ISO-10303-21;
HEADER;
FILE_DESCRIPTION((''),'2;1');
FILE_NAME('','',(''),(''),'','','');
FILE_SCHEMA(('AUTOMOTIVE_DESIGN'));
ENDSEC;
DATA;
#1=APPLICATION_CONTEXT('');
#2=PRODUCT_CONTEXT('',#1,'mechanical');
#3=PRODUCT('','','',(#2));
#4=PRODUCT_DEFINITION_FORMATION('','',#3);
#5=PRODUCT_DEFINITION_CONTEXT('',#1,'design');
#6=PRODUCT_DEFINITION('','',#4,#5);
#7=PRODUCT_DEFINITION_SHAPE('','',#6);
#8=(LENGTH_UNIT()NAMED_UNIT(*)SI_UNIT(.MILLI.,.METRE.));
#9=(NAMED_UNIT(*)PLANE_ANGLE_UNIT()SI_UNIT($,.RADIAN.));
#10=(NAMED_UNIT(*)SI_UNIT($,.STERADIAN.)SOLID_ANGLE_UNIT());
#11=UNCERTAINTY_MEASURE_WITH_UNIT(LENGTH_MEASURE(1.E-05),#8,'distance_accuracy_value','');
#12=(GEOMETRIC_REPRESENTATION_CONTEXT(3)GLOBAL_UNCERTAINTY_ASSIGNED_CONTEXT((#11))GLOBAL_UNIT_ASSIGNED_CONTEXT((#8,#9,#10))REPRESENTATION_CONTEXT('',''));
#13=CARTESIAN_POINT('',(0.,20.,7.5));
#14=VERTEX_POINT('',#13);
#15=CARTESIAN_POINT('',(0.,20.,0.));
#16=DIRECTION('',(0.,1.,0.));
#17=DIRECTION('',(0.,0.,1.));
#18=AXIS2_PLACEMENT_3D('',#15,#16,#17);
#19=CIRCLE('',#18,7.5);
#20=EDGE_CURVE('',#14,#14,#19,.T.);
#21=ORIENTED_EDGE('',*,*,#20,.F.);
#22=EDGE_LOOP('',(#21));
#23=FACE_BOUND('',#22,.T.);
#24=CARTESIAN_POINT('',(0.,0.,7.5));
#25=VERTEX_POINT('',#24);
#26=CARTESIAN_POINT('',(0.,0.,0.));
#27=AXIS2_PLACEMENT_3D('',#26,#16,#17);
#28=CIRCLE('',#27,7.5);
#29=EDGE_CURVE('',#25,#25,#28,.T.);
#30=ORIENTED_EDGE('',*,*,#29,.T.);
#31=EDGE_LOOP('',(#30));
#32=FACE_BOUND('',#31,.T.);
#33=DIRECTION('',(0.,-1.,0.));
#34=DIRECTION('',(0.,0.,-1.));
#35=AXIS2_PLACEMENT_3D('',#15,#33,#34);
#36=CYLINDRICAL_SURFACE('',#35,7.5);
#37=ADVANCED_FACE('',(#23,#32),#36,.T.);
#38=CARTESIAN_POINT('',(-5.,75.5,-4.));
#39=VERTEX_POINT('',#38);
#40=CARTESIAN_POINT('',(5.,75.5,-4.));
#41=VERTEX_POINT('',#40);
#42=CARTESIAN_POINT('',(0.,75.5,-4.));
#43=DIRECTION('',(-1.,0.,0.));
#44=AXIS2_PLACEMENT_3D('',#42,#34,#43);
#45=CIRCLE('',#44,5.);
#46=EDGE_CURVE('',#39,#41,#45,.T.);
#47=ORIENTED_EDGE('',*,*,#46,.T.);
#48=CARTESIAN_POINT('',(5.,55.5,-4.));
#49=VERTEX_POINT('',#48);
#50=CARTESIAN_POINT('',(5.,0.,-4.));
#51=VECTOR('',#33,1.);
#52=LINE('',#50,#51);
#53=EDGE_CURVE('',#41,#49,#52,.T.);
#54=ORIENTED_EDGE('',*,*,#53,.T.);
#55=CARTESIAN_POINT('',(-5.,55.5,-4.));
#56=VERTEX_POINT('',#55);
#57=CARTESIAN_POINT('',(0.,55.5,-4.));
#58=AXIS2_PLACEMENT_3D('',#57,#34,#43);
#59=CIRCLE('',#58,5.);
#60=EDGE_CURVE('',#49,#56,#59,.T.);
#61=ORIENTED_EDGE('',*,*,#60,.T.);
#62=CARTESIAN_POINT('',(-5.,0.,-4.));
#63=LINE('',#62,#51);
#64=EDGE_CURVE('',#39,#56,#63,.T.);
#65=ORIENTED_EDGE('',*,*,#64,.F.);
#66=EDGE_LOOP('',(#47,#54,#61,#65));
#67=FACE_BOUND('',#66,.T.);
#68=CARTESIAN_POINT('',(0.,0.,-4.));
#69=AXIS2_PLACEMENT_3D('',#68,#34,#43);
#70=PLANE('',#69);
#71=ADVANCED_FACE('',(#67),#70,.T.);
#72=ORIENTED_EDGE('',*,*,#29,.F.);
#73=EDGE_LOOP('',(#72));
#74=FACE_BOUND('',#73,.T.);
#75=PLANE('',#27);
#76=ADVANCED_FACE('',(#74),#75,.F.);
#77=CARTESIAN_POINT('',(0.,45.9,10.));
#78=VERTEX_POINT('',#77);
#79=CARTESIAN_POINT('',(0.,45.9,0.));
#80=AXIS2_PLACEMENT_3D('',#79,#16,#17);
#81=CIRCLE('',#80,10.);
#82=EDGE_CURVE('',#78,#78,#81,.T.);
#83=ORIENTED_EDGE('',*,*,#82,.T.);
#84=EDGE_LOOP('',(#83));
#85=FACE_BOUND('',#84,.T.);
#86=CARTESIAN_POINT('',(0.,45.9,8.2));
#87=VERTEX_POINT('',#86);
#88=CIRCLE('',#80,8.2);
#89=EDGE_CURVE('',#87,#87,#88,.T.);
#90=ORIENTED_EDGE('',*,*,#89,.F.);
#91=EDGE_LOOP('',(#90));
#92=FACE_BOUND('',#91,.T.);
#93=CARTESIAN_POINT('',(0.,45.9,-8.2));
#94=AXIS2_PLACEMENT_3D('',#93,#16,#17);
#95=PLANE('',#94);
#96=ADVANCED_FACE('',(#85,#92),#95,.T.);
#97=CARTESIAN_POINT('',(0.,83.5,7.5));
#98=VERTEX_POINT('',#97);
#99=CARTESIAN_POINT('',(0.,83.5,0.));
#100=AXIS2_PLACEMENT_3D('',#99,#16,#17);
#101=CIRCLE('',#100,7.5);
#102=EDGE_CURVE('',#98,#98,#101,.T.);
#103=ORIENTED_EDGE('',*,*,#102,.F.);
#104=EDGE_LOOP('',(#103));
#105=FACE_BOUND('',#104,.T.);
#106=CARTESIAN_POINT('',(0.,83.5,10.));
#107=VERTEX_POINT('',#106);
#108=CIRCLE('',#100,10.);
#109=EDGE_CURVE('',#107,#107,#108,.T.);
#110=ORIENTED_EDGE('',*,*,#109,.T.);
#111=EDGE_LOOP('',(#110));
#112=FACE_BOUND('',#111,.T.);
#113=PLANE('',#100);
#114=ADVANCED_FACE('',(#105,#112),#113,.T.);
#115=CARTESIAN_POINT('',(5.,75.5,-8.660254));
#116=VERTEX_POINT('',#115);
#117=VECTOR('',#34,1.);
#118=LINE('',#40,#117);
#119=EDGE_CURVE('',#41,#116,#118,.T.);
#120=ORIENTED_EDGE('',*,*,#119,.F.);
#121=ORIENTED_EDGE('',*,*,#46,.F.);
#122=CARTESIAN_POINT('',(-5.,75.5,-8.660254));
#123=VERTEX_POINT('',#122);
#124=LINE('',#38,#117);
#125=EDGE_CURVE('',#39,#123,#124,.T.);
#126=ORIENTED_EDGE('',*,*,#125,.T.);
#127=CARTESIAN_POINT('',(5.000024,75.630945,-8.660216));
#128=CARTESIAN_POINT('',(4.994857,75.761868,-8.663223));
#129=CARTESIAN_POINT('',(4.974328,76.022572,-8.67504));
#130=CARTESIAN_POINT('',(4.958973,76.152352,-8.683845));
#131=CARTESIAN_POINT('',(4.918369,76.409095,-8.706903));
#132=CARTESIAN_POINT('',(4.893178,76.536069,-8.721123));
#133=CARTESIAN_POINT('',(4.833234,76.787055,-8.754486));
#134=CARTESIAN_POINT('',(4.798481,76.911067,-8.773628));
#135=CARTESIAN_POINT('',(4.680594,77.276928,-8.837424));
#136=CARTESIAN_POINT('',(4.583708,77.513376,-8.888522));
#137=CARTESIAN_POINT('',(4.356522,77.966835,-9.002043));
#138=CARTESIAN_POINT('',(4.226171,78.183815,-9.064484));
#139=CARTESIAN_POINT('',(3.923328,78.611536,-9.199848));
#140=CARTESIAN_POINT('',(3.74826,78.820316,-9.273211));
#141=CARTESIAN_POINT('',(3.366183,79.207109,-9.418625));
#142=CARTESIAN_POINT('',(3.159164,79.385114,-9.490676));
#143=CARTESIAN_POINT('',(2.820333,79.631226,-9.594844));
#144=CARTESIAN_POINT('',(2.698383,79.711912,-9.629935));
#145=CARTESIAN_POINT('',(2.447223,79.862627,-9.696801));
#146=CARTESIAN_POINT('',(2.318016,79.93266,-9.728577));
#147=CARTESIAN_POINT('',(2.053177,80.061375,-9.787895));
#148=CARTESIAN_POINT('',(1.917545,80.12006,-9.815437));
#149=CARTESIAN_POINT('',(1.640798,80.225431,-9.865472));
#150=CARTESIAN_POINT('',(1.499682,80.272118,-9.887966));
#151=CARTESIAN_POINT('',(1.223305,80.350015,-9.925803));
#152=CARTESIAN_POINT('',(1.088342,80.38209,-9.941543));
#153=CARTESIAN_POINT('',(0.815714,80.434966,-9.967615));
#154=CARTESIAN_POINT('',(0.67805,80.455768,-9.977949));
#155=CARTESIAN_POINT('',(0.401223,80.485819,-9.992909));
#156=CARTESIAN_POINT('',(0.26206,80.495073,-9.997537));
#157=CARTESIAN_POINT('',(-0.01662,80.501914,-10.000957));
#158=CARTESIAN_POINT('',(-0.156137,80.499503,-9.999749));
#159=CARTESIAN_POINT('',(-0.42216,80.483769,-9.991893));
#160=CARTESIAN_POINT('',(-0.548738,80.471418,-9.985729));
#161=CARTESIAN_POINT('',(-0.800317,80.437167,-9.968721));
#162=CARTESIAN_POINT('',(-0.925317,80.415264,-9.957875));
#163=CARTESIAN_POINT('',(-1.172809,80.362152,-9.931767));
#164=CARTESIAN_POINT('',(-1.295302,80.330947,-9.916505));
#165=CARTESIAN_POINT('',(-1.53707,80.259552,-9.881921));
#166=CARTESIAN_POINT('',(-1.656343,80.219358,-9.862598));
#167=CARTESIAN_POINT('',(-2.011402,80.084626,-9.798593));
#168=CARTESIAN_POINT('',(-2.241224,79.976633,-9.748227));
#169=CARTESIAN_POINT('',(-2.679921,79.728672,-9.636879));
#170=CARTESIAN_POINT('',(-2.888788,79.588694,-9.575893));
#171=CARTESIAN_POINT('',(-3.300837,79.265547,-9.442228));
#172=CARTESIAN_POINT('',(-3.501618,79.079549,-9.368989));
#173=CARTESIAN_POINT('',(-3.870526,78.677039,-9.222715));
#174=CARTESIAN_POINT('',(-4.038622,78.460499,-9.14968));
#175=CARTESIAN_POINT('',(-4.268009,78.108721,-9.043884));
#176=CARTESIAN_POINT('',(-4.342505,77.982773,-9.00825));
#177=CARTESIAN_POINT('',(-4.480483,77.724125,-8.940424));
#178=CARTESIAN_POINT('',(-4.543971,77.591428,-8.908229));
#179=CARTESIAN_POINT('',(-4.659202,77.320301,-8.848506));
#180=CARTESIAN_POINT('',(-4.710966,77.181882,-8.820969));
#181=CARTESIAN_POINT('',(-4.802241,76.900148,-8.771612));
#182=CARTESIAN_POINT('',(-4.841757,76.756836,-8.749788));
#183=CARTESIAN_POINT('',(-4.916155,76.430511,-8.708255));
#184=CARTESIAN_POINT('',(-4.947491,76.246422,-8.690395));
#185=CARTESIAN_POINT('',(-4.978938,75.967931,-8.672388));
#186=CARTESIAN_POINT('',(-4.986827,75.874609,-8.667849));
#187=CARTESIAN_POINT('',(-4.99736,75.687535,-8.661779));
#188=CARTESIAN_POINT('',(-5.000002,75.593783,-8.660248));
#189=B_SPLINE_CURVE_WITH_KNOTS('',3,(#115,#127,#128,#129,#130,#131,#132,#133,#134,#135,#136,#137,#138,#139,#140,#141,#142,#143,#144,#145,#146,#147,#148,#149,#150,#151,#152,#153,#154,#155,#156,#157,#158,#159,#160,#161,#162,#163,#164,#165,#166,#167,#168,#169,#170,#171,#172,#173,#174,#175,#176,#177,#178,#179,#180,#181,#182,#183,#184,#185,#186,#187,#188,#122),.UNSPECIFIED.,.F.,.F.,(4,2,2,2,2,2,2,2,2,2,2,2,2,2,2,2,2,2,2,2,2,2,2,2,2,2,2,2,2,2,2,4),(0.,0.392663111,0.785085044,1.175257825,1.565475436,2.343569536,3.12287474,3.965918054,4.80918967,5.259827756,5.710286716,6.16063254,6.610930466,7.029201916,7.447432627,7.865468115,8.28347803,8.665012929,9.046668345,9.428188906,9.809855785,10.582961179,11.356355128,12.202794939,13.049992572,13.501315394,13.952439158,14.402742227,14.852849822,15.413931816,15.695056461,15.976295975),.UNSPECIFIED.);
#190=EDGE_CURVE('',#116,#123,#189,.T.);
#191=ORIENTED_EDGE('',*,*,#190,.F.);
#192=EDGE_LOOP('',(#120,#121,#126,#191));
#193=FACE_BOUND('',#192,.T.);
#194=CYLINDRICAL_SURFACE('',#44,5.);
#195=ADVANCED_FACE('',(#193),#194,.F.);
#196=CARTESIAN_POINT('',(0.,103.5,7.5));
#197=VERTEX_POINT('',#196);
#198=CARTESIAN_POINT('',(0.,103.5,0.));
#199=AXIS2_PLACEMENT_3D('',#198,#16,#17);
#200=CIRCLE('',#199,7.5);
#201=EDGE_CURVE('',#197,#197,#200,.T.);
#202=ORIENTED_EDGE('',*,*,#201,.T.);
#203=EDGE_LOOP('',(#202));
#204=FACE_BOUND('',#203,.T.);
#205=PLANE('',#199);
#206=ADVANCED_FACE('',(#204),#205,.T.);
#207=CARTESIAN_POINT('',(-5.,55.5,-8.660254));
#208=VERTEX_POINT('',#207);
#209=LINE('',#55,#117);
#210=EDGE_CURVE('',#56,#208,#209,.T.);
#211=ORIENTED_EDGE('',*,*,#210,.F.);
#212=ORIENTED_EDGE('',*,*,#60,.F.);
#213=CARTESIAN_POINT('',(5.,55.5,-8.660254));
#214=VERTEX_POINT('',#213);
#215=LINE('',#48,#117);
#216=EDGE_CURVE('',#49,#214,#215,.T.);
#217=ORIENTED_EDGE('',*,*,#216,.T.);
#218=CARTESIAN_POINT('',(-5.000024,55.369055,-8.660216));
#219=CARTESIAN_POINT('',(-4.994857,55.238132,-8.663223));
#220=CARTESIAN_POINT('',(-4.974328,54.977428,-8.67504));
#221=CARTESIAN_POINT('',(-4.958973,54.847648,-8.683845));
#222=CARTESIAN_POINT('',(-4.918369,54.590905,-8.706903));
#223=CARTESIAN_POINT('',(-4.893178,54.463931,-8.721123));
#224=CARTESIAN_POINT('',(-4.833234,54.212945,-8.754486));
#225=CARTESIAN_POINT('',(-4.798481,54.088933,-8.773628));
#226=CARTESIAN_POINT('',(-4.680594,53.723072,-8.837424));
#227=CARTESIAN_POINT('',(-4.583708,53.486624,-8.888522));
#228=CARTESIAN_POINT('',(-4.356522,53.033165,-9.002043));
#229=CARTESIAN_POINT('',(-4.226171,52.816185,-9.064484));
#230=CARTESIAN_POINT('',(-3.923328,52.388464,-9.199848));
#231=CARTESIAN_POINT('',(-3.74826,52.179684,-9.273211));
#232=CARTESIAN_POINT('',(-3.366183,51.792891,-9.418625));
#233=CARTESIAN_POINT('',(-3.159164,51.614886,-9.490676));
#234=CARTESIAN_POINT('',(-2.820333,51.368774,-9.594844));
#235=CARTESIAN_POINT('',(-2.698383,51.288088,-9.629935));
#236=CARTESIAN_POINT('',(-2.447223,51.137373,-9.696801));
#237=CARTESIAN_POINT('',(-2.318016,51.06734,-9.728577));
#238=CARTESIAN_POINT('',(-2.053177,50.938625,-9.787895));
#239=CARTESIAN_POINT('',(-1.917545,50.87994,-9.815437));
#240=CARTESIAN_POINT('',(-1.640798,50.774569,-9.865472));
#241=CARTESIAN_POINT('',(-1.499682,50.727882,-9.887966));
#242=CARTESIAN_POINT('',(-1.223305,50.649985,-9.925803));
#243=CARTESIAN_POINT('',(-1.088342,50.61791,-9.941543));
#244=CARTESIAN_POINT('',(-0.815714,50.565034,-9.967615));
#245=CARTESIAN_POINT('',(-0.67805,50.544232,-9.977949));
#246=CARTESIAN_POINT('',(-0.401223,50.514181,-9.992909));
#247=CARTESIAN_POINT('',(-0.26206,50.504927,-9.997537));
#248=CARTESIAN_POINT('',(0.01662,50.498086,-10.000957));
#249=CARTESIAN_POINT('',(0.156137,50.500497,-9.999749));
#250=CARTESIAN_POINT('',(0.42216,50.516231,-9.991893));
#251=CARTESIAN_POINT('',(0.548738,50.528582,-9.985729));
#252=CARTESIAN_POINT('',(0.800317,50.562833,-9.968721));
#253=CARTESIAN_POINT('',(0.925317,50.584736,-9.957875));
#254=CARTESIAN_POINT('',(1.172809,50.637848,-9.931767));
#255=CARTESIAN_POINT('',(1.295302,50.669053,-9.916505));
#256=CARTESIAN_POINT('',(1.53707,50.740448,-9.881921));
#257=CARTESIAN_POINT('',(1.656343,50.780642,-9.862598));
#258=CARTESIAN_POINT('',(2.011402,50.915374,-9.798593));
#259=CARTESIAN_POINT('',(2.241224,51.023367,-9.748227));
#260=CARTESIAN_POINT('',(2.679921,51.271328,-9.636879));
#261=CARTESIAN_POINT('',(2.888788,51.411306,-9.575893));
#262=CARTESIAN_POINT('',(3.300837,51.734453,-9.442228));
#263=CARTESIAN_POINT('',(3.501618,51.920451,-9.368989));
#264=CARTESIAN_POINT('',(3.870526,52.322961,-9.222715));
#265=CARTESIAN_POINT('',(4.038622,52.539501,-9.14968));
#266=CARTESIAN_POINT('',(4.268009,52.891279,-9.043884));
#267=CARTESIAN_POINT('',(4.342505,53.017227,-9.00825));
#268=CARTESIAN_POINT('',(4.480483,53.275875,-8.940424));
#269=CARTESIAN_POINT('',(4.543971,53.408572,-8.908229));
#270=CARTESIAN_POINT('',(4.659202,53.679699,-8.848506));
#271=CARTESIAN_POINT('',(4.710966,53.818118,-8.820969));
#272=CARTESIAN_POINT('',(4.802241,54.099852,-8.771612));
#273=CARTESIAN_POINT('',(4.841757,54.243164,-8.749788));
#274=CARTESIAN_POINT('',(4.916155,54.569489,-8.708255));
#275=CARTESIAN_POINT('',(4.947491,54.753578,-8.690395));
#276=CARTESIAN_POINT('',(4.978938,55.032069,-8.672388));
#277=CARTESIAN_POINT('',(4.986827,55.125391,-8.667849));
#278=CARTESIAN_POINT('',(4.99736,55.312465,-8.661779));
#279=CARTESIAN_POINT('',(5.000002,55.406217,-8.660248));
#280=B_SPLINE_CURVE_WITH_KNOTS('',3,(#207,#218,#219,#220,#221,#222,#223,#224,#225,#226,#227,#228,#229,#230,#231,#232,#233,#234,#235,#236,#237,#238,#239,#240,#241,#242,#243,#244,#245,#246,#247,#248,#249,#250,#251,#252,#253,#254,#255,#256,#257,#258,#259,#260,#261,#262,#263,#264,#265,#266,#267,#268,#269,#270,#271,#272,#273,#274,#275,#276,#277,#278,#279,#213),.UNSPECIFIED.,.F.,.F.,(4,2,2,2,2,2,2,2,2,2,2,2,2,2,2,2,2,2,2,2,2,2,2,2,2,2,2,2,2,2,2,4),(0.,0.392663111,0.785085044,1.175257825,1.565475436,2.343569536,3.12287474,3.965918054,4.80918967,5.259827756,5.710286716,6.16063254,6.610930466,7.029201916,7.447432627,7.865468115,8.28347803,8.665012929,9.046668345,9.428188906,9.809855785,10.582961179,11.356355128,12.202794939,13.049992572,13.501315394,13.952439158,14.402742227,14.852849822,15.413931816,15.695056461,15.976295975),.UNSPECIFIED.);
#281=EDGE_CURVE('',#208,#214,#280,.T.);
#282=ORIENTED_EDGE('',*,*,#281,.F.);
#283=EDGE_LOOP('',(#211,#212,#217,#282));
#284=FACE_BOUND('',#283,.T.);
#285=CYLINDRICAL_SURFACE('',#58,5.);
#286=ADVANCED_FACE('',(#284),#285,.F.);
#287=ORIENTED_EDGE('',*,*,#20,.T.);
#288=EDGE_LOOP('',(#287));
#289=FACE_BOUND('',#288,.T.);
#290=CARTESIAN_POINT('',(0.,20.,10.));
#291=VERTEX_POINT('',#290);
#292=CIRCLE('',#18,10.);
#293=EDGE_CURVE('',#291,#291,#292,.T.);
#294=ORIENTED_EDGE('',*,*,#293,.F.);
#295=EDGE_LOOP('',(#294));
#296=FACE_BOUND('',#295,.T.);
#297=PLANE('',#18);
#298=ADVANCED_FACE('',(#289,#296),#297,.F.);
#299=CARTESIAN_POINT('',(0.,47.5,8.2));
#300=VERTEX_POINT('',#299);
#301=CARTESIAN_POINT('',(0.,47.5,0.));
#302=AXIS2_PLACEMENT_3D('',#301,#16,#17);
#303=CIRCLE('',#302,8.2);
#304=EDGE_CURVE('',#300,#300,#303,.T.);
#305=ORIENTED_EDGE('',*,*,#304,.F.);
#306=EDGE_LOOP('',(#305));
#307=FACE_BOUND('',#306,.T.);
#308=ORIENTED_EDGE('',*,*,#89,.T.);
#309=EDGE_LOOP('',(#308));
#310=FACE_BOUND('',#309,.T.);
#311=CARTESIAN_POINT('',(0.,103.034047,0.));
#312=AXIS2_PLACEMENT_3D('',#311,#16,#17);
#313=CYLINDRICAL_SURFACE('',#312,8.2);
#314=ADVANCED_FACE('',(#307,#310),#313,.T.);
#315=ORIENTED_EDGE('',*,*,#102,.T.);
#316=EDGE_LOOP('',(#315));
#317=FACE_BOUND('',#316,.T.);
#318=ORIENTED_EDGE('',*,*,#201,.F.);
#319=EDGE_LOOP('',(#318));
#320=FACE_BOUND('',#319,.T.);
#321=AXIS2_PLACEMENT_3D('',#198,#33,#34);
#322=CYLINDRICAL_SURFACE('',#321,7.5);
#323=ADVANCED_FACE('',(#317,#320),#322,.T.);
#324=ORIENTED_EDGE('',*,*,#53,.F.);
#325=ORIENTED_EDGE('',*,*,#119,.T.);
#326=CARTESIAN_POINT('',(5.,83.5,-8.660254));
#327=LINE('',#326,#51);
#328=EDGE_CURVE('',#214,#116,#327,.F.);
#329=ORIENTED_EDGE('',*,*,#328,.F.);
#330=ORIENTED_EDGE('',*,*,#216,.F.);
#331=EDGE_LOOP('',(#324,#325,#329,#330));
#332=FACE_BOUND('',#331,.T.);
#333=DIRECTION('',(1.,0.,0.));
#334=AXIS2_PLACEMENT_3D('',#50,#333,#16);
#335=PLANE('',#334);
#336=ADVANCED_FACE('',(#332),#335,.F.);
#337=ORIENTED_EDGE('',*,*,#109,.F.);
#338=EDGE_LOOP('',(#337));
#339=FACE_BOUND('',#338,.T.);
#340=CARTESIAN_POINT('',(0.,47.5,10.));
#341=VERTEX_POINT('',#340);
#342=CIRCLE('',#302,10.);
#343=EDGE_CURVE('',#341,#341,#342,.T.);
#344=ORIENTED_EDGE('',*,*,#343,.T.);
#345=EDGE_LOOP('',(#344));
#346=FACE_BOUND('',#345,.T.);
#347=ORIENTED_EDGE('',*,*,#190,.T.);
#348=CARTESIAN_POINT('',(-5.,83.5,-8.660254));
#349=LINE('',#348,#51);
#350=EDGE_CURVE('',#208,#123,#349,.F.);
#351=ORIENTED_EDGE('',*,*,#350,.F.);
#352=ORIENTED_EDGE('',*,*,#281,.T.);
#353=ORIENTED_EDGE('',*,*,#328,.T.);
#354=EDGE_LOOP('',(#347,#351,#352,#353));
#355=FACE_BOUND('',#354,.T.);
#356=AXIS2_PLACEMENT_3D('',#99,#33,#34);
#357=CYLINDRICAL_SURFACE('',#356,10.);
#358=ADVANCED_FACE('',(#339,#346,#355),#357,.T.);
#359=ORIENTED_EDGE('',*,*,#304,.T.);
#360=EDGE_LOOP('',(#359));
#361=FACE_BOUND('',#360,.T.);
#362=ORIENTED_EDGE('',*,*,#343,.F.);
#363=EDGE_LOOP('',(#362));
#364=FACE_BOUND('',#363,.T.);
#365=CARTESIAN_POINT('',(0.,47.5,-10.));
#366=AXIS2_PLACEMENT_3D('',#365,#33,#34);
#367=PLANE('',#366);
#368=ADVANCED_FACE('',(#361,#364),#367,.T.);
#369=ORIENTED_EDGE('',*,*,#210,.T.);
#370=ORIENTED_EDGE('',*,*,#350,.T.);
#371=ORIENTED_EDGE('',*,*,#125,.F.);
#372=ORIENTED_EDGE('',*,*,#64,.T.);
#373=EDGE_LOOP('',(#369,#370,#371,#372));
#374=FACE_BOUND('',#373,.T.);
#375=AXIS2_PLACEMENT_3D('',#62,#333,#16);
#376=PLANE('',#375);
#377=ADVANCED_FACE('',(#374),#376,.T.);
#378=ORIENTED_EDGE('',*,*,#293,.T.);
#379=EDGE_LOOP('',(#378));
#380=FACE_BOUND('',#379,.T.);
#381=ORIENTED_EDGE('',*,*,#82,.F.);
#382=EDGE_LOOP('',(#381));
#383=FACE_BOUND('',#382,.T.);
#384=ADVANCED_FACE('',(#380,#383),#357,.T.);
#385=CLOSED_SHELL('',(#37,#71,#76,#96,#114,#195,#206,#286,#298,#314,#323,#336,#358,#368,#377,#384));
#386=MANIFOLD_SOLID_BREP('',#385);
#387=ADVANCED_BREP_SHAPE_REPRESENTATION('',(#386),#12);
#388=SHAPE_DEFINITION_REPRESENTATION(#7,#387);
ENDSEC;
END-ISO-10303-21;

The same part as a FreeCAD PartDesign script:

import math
import FreeCAD as App
import Part
import Sketcher

V = App.Vector
Q = App.Units.Quantity

doc = App.newDocument("Part")
body = doc.addObject("PartDesign::Body", "Body")

# Sketch on XZ plane
sketch1 = body.newObject("Sketcher::SketchObject", "Sketch")
sketch1.AttachmentSupport = (doc.getObject("XZ_Plane"), [""])
sketch1.MapMode = "FlatFace"
sketch1.addGeometry(Part.Circle(V(0, 0, 0), V(0, 0, 1), 8), False)
sketch1.addConstraint(Sketcher.Constraint("Coincident", 0, 3, -1, 1))
sketch1.addConstraint(Sketcher.Constraint("Diameter", 0, Q("15 mm")))
pad1 = body.newObject("PartDesign::Pad", "Pad")
pad1.Profile = sketch1
pad1.Length = 20
pad1.Reversed = True

# Sketch on XZ plane
sketch2 = body.newObject("Sketcher::SketchObject", "Sketch001")
sketch2.AttachmentSupport = (doc.getObject("XZ_Plane"), [""])
sketch2.MapMode = "FlatFace"
sketch2.AttachmentOffset = App.Placement(V(0, 0, -20), App.Rotation())
sketch2.addGeometry(Part.Circle(V(0, 0, 0), V(0, 0, 1), 10), False)
sketch2.addConstraint(Sketcher.Constraint("Coincident", 0, 3, -1, 1))
sketch2.addConstraint(Sketcher.Constraint("Diameter", 0, Q("20 mm")))
pad2 = body.newObject("PartDesign::Pad", "Pad001")
pad2.Profile = sketch2
pad2.Length = 63.5
pad2.Reversed = True

# Sketch on XZ plane
sketch3 = body.newObject("Sketcher::SketchObject", "Sketch002")
sketch3.AttachmentSupport = (doc.getObject("XZ_Plane"), [""])
sketch3.MapMode = "FlatFace"
sketch3.AttachmentOffset = App.Placement(V(0, 0, -83.5), App.Rotation())
sketch3.addGeometry(Part.Circle(V(0, 0, 0), V(0, 0, 1), 8), False)
sketch3.addConstraint(Sketcher.Constraint("Coincident", 0, 3, -1, 1))
sketch3.addConstraint(Sketcher.Constraint("Diameter", 0, Q("15 mm")))
pad3 = body.newObject("PartDesign::Pad", "Pad002")
pad3.Profile = sketch3
pad3.Length = 20
pad3.Reversed = True

# Sketch on XY plane
sketch4 = body.newObject("Sketcher::SketchObject", "Sketch003")
sketch4.AttachmentSupport = (doc.getObject("XY_Plane"), [""])
sketch4.MapMode = "FlatFace"
sketch4.AttachmentOffset = App.Placement(V(0, 0, -10), App.Rotation())
sketch4.addGeometry(Part.LineSegment(V(5, 76, 0), V(5, 56, 0)), False)
sketch4.addGeometry(Part.ArcOfCircle(Part.Circle(V(0, 56, 0), V(0, 0, 1), 5), math.radians(180), math.radians(360)), False)
sketch4.addGeometry(Part.LineSegment(V(-5, 56, 0), V(-5, 76, 0)), False)
sketch4.addGeometry(Part.ArcOfCircle(Part.Circle(V(0, 76, 0), V(0, 0, 1), 5), math.radians(0), math.radians(180)), False)
sketch4.addConstraint(Sketcher.Constraint("Tangent", 0, 2, 1, 2))
sketch4.addConstraint(Sketcher.Constraint("Tangent", 1, 1, 2, 1))
sketch4.addConstraint(Sketcher.Constraint("Tangent", 2, 2, 3, 2))
sketch4.addConstraint(Sketcher.Constraint("Tangent", 3, 1, 0, 1))
sketch4.addConstraint(Sketcher.Constraint("Vertical", 0))
sketch4.addConstraint(Sketcher.Constraint("Vertical", 2))
sketch4.addConstraint(Sketcher.Constraint("PointOnObject", 1, 3, -2))
sketch4.addConstraint(Sketcher.Constraint("Radius", 1, Q("5 mm")))
sketch4.addConstraint(Sketcher.Constraint("DistanceY", 0, 2, 0, 1, Q("20 mm")))
sketch4.addConstraint(Sketcher.Constraint("DistanceY", -1, 1, 1, 3, Q("55.5 mm")))
pocket1 = body.newObject("PartDesign::Pocket", "Pocket")
pocket1.Profile = sketch4
pocket1.Length = 6
pocket1.Reversed = True

# Sketch on YZ plane
sketch5 = body.newObject("Sketcher::SketchObject", "Sketch004")
sketch5.AttachmentSupport = (doc.getObject("YZ_Plane"), [""])
sketch5.MapMode = "FlatFace"
sketch5.addGeometry(Part.LineSegment(V(47.5, -8.2, 0), V(45.9, -8.2, 0)), False)
sketch5.addGeometry(Part.LineSegment(V(45.9, -8.2, 0), V(45.9, -10, 0)), False)
sketch5.addGeometry(Part.LineSegment(V(45.9, -10, 0), V(47.5, -10, 0)), False)
sketch5.addGeometry(Part.LineSegment(V(47.5, -10, 0), V(47.5, -8.2, 0)), False)
sketch5.addConstraint(Sketcher.Constraint("Coincident", 0, 2, 1, 1))
sketch5.addConstraint(Sketcher.Constraint("Coincident", 1, 2, 2, 1))
sketch5.addConstraint(Sketcher.Constraint("Coincident", 2, 2, 3, 1))
sketch5.addConstraint(Sketcher.Constraint("Coincident", 3, 2, 0, 1))
sketch5.addConstraint(Sketcher.Constraint("Horizontal", 0))
sketch5.addConstraint(Sketcher.Constraint("Vertical", 1))
sketch5.addConstraint(Sketcher.Constraint("Horizontal", 2))
sketch5.addConstraint(Sketcher.Constraint("Vertical", 3))
sketch5.addConstraint(Sketcher.Constraint("DistanceX", 0, 2, 0, 1, Q("1.6 mm")))
sketch5.addConstraint(Sketcher.Constraint("DistanceY", 1, 2, 1, 1, Q("1.8 mm")))
sketch5.addConstraint(Sketcher.Constraint("DistanceY", 1, 2, -1, 1, Q("10 mm")))
sketch5.addConstraint(Sketcher.Constraint("DistanceX", -1, 1, 0, 2, Q("45.9 mm")))
groove = body.newObject("PartDesign::Groove", "Groove")
groove.Profile = sketch5
groove.ReferenceAxis = (sketch5, ["H_Axis"])
groove.Angle = 360

doc.recompute()
